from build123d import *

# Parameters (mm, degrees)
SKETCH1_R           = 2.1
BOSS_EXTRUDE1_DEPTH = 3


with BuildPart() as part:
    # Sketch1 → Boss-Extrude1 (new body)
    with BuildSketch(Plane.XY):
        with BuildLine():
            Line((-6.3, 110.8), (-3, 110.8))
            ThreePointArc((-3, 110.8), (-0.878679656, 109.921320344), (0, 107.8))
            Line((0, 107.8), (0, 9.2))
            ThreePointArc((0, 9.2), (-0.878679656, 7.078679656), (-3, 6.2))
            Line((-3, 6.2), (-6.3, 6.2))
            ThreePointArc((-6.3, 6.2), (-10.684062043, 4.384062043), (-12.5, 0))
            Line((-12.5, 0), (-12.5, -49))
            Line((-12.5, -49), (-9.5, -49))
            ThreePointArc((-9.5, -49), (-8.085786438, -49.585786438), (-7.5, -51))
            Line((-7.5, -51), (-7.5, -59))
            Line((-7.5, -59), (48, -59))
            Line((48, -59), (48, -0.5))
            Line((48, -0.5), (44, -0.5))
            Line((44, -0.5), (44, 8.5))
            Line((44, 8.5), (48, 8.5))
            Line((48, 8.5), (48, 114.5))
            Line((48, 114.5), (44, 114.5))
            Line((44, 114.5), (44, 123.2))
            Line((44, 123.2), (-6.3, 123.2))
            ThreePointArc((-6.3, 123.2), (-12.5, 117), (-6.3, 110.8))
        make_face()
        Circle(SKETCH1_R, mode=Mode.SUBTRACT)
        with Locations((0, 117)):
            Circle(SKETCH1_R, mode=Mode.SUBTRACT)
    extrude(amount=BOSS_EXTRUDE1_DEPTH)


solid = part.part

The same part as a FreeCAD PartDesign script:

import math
import FreeCAD as App
import Part
import Sketcher
from FreeCAD import Vector
Q = App.Units.Quantity

doc = App.newDocument("Part")
body = doc.addObject("PartDesign::Body", "Body")

sketch1 = body.newObject("Sketcher::SketchObject", "Sketch")
sketch1.AttachmentSupport = (doc.getObject("XY_Plane"), [""])
sketch1.MapMode = "FlatFace"
sketch1.addGeometry(Part.LineSegment(Vector(-6.3, 110.8, 0), Vector(-3, 110.8, 0)), False)
sketch1.addGeometry(Part.ArcOfCircle(Part.Circle(Vector(-3, 107.8, 0), Vector(0, 0, 1), 3), math.radians(0), math.radians(90)), False)
sketch1.addGeometry(Part.LineSegment(Vector(0, 107.8, 0), Vector(0, 9.2, 0)), False)
sketch1.addGeometry(Part.ArcOfCircle(Part.Circle(Vector(-3, 9.2, 0), Vector(0, 0, 1), 3), math.radians(-90), math.radians(0)), False)
sketch1.addGeometry(Part.LineSegment(Vector(-3, 6.2, 0), Vector(-6.3, 6.2, 0)), False)
sketch1.addGeometry(Part.ArcOfCircle(Part.Circle(Vector(-6.3, 0, 0), Vector(0, 0, 1), 6.2), math.radians(90), math.radians(180)), False)
sketch1.addGeometry(Part.LineSegment(Vector(-12.5, 0, 0), Vector(-12.5, -49, 0)), False)
sketch1.addGeometry(Part.LineSegment(Vector(-12.5, -49, 0), Vector(-9.5, -49, 0)), False)
sketch1.addGeometry(Part.ArcOfCircle(Part.Circle(Vector(-9.5, -51, 0), Vector(0, 0, 1), 2), math.radians(0), math.radians(90)), False)
sketch1.addGeometry(Part.LineSegment(Vector(-7.5, -51, 0), Vector(-7.5, -59, 0)), False)
sketch1.addGeometry(Part.LineSegment(Vector(-7.5, -59, 0), Vector(48, -59, 0)), False)
sketch1.addGeometry(Part.LineSegment(Vector(48, -59, 0), Vector(48, -0.5, 0)), False)
sketch1.addGeometry(Part.LineSegment(Vector(48, -0.5, 0), Vector(44, -0.5, 0)), False)
sketch1.addGeometry(Part.LineSegment(Vector(44, -0.5, 0), Vector(44, 8.5, 0)), False)
sketch1.addGeometry(Part.LineSegment(Vector(44, 8.5, 0), Vector(48, 8.5, 0)), False)
sketch1.addGeometry(Part.LineSegment(Vector(48, 8.5, 0), Vector(48, 114.5, 0)), False)
sketch1.addGeometry(Part.LineSegment(Vector(48, 114.5, 0), Vector(44, 114.5, 0)), False)
sketch1.addGeometry(Part.LineSegment(Vector(44, 114.5, 0), Vector(44, 123.2, 0)), False)
sketch1.addGeometry(Part.LineSegment(Vector(44, 123.2, 0), Vector(-6.3, 123.2, 0)), False)
sketch1.addGeometry(Part.ArcOfCircle(Part.Circle(Vector(-6.3, 117, 0), Vector(0, 0, 1), 6.2), math.radians(90), math.radians(270)), False)
sketch1.addGeometry(Part.Circle(Vector(0, 0, 0), Vector(0, 0, 1), 2.1), False)
sketch1.addGeometry(Part.Circle(Vector(0, 117, 0), Vector(0, 0, 1), 2.1), False)
sketch1.addConstraint(Sketcher.Constraint("Tangent", 0, 2, 1, 2))
sketch1.addConstraint(Sketcher.Constraint("Tangent", 1, 1, 2, 1))
sketch1.addConstraint(Sketcher.Constraint("Tangent", 2, 2, 3, 2))
sketch1.addConstraint(Sketcher.Constraint("Tangent", 3, 1, 4, 1))
sketch1.addConstraint(Sketcher.Constraint("Tangent", 4, 2, 5, 1))
sketch1.addConstraint(Sketcher.Constraint("Tangent", 5, 2, 6, 1))
sketch1.addConstraint(Sketcher.Constraint("Coincident", 6, 2, 7, 1))
sketch1.addConstraint(Sketcher.Constraint("Tangent", 7, 2, 8, 2))
sketch1.addConstraint(Sketcher.Constraint("Tangent", 8, 1, 9, 1))
sketch1.addConstraint(Sketcher.Constraint("Coincident", 9, 2, 10, 1))
sketch1.addConstraint(Sketcher.Constraint("Coincident", 10, 2, 11, 1))
sketch1.addConstraint(Sketcher.Constraint("Coincident", 11, 2, 12, 1))
sketch1.addConstraint(Sketcher.Constraint("Coincident", 12, 2, 13, 1))
sketch1.addConstraint(Sketcher.Constraint("Coincident", 13, 2, 14, 1))
sketch1.addConstraint(Sketcher.Constraint("Coincident", 14, 2, 15, 1))
sketch1.addConstraint(Sketcher.Constraint("Coincident", 15, 2, 16, 1))
sketch1.addConstraint(Sketcher.Constraint("Coincident", 16, 2, 17, 1))
sketch1.addConstraint(Sketcher.Constraint("Coincident", 17, 2, 18, 1))
sketch1.addConstraint(Sketcher.Constraint("Tangent", 18, 2, 19, 1))
sketch1.addConstraint(Sketcher.Constraint("Tangent", 19, 2, 0, 1))
sketch1.addConstraint(Sketcher.Constraint("Horizontal", 0))
sketch1.addConstraint(Sketcher.Constraint("Vertical", 2))
sketch1.addConstraint(Sketcher.Constraint("Horizontal", 4))
sketch1.addConstraint(Sketcher.Constraint("Vertical", 6))
sketch1.addConstraint(Sketcher.Constraint("Horizontal", 7))
sketch1.addConstraint(Sketcher.Constraint("Vertical", 9))
sketch1.addConstraint(Sketcher.Constraint("Horizontal", 10))
sketch1.addConstraint(Sketcher.Constraint("Vertical", 11))
sketch1.addConstraint(Sketcher.Constraint("Horizontal", 12))
sketch1.addConstraint(Sketcher.Constraint("Vertical", 13))
sketch1.addConstraint(Sketcher.Constraint("Horizontal", 14))
sketch1.addConstraint(Sketcher.Constraint("Vertical", 15))
sketch1.addConstraint(Sketcher.Constraint("Horizontal", 16))
sketch1.addConstraint(Sketcher.Constraint("Vertical", 17))
sketch1.addConstraint(Sketcher.Constraint("Horizontal", 18))
sketch1.addConstraint(Sketcher.Constraint("Coincident", 20, 3, -1, 1))
sketch1.addConstraint(Sketcher.Constraint("Equal", 1, 3))
sketch1.addConstraint(Sketcher.Constraint("Equal", 5, 19))
sketch1.addConstraint(Sketcher.Constraint("Equal", 20, 21))
sketch1.addConstraint(Sketcher.Constraint("PointOnObject", 5, 3, -1))
sketch1.addConstraint(Sketcher.Constraint("PointOnObject", 21, 3, -2))
sketch1.addConstraint(Sketcher.Constraint("PointOnObject", 1, 1, -2))
sketch1.addConstraint(Sketcher.Constraint("Horizontal", 19, 3, 21, 3))
sketch1.addConstraint(Sketcher.Constraint("Vertical", 5, 3, 19, 3))
sketch1.addConstraint(Sketcher.Constraint("Vertical", 11, 2, 14, 2))
sketch1.addConstraint(Sketcher.Constraint("Vertical", 13, 2, 16, 2))
sketch1.addConstraint(Sketcher.Constraint("Radius", 1, Q("3 mm")))
sketch1.addConstraint(Sketcher.Constraint("Radius", 8, Q("2 mm")))
sketch1.addConstraint(Sketcher.Constraint("Diameter", 20, Q("4.2 mm")))
sketch1.addConstraint(Sketcher.Constraint("Radius", 5, Q("6.2 mm")))
sketch1.addConstraint(Sketcher.Constraint("DistanceX", 7, 1, 7, 2, Q("3 mm")))
sketch1.addConstraint(Sketcher.Constraint("DistanceX", 12, 2, 12, 1, Q("4 mm")))
sketch1.addConstraint(Sketcher.Constraint("DistanceY", 6, 2, 6, 1, Q("49 mm")))
sketch1.addConstraint(Sketcher.Constraint("DistanceY", 9, 2, 9, 1, Q("8 mm")))
sketch1.addConstraint(Sketcher.Constraint("DistanceY", 13, 1, 13, 2, Q("9 mm")))
sketch1.addConstraint(Sketcher.Constraint("DistanceY", 15, 1, 15, 2, Q("106 mm")))
sketch1.addConstraint(Sketcher.Constraint("DistanceX", 0, 1, 0, 2, Q("3.3 mm")))
sketch1.addConstraint(Sketcher.Constraint("DistanceX", 10, 1, 10, 2, Q("55.5 mm")))
sketch1.addConstraint(Sketcher.Constraint("DistanceY", 2, 2, 2, 1, Q("98.6 mm")))
sketch1.addConstraint(Sketcher.Constraint("DistanceY", 11, 1, 11, 2, Q("58.5 mm")))
pad1 = body.newObject("PartDesign::Pad", "Pad")
pad1.Profile = sketch1
pad1.Length = 3

doc.recompute()
